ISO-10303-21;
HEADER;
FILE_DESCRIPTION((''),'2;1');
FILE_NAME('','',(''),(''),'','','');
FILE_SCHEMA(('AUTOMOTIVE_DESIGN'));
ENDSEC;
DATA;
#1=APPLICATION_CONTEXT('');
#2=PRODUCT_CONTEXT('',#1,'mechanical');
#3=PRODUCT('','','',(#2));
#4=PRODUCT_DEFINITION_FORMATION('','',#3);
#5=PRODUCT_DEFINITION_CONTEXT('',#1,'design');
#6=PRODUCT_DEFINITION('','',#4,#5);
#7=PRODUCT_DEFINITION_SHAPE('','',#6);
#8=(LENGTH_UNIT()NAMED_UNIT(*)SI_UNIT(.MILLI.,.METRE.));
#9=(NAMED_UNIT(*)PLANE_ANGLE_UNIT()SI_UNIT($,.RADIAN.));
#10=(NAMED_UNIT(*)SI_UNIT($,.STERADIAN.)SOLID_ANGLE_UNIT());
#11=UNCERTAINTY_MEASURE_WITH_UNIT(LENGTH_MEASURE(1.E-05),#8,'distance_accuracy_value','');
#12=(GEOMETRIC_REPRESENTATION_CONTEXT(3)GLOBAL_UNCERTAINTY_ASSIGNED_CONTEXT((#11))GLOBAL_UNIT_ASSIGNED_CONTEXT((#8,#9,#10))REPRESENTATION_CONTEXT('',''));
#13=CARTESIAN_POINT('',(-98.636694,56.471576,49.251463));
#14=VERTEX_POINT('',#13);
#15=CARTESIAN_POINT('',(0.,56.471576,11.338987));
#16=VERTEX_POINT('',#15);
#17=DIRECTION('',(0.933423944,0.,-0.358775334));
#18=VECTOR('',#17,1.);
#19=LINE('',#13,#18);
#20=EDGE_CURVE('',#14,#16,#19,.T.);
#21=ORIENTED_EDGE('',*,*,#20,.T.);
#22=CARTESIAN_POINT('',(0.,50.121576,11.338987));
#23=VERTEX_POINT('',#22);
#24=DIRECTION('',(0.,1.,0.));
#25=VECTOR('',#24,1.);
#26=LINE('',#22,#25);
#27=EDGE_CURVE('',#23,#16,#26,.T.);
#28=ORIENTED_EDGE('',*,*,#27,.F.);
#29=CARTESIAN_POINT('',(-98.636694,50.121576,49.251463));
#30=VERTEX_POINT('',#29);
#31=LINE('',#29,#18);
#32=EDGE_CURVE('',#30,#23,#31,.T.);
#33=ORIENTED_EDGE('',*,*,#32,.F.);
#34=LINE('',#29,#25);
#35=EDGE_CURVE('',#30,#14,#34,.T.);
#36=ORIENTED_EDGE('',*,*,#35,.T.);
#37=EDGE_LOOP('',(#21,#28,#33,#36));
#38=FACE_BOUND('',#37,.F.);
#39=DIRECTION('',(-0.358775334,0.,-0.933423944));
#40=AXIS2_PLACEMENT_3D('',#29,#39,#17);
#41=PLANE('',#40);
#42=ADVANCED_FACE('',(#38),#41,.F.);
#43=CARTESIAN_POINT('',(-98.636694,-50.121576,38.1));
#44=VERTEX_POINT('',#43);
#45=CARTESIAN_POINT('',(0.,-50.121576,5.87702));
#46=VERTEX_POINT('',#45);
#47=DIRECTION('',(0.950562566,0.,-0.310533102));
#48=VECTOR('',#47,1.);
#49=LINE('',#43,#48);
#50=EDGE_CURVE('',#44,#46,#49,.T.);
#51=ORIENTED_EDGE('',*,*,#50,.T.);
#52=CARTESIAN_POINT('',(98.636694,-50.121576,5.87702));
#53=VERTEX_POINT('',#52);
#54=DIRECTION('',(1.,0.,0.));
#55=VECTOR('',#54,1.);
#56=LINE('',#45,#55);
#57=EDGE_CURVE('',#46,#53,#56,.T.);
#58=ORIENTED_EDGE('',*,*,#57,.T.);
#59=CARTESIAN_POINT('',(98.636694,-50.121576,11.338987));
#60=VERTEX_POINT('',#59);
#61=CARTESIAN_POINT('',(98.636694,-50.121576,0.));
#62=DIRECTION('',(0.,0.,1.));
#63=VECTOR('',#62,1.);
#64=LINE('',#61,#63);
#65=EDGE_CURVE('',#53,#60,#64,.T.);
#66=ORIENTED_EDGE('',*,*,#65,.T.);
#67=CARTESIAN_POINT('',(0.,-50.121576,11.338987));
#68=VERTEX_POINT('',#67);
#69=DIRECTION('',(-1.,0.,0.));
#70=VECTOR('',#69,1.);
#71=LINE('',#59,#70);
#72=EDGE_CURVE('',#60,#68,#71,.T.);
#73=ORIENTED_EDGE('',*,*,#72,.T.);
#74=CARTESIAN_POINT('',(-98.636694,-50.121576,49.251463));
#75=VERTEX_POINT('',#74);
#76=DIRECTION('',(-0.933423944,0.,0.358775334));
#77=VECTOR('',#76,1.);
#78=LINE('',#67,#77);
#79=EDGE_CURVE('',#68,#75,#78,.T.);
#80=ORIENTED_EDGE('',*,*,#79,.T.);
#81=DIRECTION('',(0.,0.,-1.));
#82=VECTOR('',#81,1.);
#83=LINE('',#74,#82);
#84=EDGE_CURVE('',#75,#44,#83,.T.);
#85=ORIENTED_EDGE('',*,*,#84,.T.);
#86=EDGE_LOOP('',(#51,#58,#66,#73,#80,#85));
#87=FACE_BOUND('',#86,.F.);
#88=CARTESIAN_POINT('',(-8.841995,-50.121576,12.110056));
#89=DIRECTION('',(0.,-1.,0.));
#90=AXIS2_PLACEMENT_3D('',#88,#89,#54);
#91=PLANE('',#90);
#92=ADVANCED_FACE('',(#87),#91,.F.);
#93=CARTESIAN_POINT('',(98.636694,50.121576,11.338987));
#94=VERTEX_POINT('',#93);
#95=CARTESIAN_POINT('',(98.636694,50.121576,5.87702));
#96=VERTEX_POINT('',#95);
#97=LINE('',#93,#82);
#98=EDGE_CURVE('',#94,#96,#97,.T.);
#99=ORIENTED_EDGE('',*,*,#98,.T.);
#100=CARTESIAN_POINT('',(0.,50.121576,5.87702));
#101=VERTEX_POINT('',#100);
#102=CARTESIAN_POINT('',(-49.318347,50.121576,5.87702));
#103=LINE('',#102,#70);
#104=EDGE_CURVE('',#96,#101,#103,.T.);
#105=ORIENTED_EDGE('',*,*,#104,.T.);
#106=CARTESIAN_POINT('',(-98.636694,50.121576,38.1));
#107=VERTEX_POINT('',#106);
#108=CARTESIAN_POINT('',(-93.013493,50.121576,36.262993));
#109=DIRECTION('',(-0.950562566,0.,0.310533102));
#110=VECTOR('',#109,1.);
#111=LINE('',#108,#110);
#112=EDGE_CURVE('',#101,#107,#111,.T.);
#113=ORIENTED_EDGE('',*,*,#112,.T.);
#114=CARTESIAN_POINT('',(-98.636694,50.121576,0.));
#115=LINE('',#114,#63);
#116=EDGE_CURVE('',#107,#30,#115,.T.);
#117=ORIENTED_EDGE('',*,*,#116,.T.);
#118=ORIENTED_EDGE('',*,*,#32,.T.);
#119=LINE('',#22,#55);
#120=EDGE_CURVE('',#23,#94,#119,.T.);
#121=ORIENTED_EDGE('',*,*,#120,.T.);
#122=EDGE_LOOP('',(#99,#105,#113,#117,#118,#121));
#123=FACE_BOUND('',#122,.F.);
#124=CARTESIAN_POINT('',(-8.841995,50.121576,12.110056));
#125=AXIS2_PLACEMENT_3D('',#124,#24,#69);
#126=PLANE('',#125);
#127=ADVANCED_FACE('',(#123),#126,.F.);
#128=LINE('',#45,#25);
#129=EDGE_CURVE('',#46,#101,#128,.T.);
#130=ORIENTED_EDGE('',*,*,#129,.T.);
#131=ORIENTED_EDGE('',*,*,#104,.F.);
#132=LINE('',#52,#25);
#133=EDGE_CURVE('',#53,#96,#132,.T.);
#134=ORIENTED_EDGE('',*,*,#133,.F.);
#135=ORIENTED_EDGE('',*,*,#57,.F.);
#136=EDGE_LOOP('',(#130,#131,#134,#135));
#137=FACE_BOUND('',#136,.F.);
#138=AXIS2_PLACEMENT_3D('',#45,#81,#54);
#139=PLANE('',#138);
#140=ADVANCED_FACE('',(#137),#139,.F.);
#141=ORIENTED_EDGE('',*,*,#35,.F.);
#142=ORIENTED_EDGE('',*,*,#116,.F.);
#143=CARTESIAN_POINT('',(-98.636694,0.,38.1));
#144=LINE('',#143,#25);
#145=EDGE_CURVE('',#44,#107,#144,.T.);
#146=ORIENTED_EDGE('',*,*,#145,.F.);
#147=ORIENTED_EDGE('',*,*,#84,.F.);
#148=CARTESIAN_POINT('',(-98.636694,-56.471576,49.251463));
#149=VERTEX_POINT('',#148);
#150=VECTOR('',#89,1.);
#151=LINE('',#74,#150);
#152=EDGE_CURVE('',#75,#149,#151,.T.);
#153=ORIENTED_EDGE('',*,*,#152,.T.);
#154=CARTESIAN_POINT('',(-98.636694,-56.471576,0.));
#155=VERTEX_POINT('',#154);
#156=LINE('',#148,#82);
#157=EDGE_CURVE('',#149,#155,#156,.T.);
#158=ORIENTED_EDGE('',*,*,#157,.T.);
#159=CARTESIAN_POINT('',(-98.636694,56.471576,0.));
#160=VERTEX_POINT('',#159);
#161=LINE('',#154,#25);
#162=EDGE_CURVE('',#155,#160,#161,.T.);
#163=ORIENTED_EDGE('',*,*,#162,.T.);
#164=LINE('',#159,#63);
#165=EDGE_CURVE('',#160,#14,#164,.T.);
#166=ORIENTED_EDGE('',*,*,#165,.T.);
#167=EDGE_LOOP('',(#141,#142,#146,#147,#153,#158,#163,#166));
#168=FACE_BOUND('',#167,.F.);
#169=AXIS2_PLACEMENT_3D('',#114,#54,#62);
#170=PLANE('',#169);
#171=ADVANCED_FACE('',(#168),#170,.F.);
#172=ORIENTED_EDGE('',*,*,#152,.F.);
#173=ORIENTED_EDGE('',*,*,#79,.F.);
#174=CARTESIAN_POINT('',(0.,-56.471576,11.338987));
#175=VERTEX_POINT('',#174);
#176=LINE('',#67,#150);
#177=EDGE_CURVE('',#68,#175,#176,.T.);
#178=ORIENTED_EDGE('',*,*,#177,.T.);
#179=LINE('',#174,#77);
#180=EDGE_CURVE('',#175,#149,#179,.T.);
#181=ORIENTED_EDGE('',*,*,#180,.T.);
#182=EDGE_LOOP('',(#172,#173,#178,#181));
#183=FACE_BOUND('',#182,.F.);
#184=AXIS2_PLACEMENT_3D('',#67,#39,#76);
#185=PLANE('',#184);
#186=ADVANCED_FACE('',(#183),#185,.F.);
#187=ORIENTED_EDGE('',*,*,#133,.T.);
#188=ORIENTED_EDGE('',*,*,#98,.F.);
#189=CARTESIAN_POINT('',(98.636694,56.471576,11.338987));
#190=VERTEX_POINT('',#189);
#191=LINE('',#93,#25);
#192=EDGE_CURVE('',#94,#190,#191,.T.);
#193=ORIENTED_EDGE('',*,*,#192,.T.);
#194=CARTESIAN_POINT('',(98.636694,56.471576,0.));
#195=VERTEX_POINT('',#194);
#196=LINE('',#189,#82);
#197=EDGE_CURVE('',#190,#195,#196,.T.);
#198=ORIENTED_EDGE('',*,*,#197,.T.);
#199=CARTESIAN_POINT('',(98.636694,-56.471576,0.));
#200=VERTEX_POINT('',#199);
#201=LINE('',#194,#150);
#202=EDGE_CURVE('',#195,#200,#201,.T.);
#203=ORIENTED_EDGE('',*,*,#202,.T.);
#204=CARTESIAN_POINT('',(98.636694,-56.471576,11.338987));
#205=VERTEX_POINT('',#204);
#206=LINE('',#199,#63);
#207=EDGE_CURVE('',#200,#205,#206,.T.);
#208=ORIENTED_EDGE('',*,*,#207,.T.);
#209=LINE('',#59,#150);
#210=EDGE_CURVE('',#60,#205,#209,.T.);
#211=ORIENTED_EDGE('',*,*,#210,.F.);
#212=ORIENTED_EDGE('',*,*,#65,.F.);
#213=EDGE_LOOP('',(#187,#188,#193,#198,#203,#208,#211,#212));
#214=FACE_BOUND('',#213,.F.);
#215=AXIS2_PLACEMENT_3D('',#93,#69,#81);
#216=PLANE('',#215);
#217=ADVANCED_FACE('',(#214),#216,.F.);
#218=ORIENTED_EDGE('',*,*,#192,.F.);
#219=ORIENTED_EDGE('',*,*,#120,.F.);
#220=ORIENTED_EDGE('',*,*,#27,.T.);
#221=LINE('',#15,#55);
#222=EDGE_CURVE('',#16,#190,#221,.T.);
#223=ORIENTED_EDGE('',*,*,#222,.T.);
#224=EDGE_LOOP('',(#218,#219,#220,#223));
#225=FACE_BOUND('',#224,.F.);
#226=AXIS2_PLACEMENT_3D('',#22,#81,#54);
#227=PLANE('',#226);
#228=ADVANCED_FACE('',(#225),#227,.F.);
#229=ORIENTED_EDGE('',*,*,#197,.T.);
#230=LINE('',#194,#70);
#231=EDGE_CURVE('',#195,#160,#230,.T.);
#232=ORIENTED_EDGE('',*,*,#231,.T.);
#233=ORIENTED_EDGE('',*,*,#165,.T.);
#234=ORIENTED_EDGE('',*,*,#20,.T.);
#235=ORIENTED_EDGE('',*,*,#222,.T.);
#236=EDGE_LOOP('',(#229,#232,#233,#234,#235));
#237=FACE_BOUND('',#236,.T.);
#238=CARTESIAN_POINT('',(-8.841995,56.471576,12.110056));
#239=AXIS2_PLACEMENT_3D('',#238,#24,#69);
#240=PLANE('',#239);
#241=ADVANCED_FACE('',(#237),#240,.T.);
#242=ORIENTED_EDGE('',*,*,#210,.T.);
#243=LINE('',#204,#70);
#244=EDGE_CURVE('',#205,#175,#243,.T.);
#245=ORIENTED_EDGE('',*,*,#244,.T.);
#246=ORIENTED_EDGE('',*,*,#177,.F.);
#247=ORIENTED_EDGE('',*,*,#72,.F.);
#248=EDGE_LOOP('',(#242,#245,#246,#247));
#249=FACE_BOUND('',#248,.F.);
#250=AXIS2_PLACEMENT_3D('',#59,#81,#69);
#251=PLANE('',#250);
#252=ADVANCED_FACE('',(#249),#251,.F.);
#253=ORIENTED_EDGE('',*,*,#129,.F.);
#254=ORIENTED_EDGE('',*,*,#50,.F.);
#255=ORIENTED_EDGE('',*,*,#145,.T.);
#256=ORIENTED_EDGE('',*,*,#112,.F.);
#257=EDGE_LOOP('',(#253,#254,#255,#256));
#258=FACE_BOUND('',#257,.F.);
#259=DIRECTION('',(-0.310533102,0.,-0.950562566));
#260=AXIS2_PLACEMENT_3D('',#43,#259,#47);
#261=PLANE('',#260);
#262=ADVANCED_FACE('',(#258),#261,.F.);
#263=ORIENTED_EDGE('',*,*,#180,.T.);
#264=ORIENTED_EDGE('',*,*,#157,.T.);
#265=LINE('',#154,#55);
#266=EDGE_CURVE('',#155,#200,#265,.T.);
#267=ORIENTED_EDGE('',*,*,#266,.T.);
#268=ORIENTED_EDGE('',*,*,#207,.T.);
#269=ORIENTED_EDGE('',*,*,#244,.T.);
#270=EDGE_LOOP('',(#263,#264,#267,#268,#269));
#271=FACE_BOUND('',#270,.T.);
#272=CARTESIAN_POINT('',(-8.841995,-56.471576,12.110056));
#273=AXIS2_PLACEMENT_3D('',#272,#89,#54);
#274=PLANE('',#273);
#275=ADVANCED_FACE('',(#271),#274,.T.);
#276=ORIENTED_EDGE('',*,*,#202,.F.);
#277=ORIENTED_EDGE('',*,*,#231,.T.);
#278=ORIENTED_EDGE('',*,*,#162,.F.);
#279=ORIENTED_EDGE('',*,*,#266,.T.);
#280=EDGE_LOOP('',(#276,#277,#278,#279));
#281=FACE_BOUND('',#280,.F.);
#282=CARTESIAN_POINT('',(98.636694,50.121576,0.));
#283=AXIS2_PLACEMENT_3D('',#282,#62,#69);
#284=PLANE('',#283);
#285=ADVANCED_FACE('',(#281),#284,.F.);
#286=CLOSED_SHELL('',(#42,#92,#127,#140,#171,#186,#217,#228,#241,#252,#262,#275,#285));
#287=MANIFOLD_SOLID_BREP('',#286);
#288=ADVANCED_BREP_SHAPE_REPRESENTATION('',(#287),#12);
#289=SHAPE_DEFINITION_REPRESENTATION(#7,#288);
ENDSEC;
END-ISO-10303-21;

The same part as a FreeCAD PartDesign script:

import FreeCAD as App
import Part
import Sketcher
Q = App.Units.Quantity


def add_polygon(sketch, points):
    """Adds a closed chain of lines whose ends are joined by coincident constraints."""
    first, n = sketch.GeometryCount, len(points)
    for a, b in zip(points, points[1:] + points[:1]):
        sketch.addGeometry(Part.LineSegment(App.Vector(*a, 0), App.Vector(*b, 0)), False)
    for i in range(n):
        sketch.addConstraint(Sketcher.Constraint("Coincident", first + i, 2, first + (i + 1) % n, 1))

doc = App.newDocument("Part")
body = doc.addObject("PartDesign::Body", "Body")

# Sketch on XY plane
sketch1 = doc.addObject("Sketcher::SketchObject", "Sketch")
body.addObject(sketch1)
sketch1.AttachmentSupport = (doc.XY_Plane, [""])
sketch1.MapMode = "FlatFace"
add_polygon(sketch1, [(-99, 50), (-99, -50), (99, -50), (99, 50)])  # lines 0-3
sketch1.addConstraint([
    Sketcher.Constraint("Vertical", 0),
    Sketcher.Constraint("Horizontal", 1),
    Sketcher.Constraint("Vertical", 2),
    Sketcher.Constraint("Horizontal", 3),
    Sketcher.Constraint("Symmetric", 0, 2, 2, 2, -1, 1),
    Sketcher.Constraint("DistanceX", 1, 1, 1, 2, Q("197.273388 mm")),
    Sketcher.Constraint("DistanceY", 0, 2, 0, 1, Q("100.243152 mm")),
])
pad1 = doc.addObject("PartDesign::Pad", "Pad")
body.addObject(pad1)
pad1.Profile = sketch1
pad1.Length = Q("1.5 in")

# Sketch on XZ plane
sketch2 = doc.addObject("Sketcher::SketchObject", "Sketch001")
body.addObject(sketch2)
sketch2.AttachmentSupport = (doc.XZ_Plane, [""])
sketch2.MapMode = "FlatFace"
sketch2.AttachmentOffset = App.Placement(App.Vector(0, 0, 50.121576), App.Rotation())
add_polygon(sketch2, [(99, 38), (-99, 38), (0, 6), (99, 6)])  # lines 0-3
sketch2.addConstraint([
    Sketcher.Constraint("Horizontal", 0),
    Sketcher.Constraint("Horizontal", 2),
    Sketcher.Constraint("Vertical", 3),
    Sketcher.Constraint("PointOnObject", 1, 2, -2),
    Sketcher.Constraint("DistanceY", -1, 1, 0, 2, Q("1.5 in")),
    Sketcher.Constraint("DistanceX", 0, 2, 0, 1, Q("197.273388 mm")),
    Sketcher.Constraint("DistanceY", 3, 1, 3, 2, Q("32.22298 mm")),
    Sketcher.Constraint("Distance", 1, Q("103.766651 mm")),
])
pocket1 = doc.addObject("PartDesign::Pocket", "Pocket")
body.addObject(pocket1)
pocket1.Profile = sketch2
pocket1.Type = "ThroughAll"

# Sketch on XZ plane
sketch3 = doc.addObject("Sketcher::SketchObject", "Sketch002")
body.addObject(sketch3)
sketch3.AttachmentSupport = (doc.XZ_Plane, [""])
sketch3.MapMode = "FlatFace"
sketch3.AttachmentOffset = App.Placement(App.Vector(0, 0, 50.121576), App.Rotation())
add_polygon(sketch3, [(-99, 49), (-99, 0), (99, 0), (99, 11), (0, 11)])  # lines 0-4
sketch3.addConstraint([
    Sketcher.Constraint("Vertical", 0),
    Sketcher.Constraint("Horizontal", 1),
    Sketcher.Constraint("Vertical", 2),
    Sketcher.Constraint("Horizontal", 3),
    Sketcher.Constraint("Symmetric", 0, 2, 1, 2, -1, 1),
    Sketcher.Constraint("PointOnObject", 3, 2, -2),
    Sketcher.Constraint("DistanceX", 1, 1, 1, 2, Q("197.273388 mm")),
    Sketcher.Constraint("DistanceY", 0, 2, 0, 1, Q("49.251463 mm")),
    Sketcher.Constraint("DistanceY", 2, 1, 2, 2, Q("11.338987 mm")),
])
pad2 = doc.addObject("PartDesign::Pad", "Pad001")
body.addObject(pad2)
pad2.Profile = sketch3
pad2.Length = Q("0.25 in")

# Sketch on XZ plane
sketch4 = doc.addObject("Sketcher::SketchObject", "Sketch003")
body.addObject(sketch4)
sketch4.AttachmentSupport = (doc.XZ_Plane, [""])
sketch4.MapMode = "FlatFace"
sketch4.AttachmentOffset = App.Placement(App.Vector(0, 0, -50.121576), App.Rotation())
add_polygon(sketch4, [(99, 0), (-99, 0), (-99, 49), (0, 11), (99, 11)])  # lines 0-4
sketch4.addConstraint([
    Sketcher.Constraint("Horizontal", 0),
    Sketcher.Constraint("Vertical", 1),
    Sketcher.Constraint("Horizontal", 3),
    Sketcher.Constraint("Vertical", 4),
    Sketcher.Constraint("Symmetric", 0, 2, 4, 2, -1, 1),
    Sketcher.Constraint("PointOnObject", 2, 2, -2),
    Sketcher.Constraint("DistanceX", 0, 2, 0, 1, Q("197.273388 mm")),
    Sketcher.Constraint("DistanceY", 1, 1, 1, 2, Q("49.251463 mm")),
    Sketcher.Constraint("DistanceY", 4, 2, 4, 1, Q("11.338987 mm")),
])
pad3 = doc.addObject("PartDesign::Pad", "Pad002")
body.addObject(pad3)
pad3.Profile = sketch4
pad3.Length = Q("0.25 in")
pad3.Reversed = True

doc.recompute()
